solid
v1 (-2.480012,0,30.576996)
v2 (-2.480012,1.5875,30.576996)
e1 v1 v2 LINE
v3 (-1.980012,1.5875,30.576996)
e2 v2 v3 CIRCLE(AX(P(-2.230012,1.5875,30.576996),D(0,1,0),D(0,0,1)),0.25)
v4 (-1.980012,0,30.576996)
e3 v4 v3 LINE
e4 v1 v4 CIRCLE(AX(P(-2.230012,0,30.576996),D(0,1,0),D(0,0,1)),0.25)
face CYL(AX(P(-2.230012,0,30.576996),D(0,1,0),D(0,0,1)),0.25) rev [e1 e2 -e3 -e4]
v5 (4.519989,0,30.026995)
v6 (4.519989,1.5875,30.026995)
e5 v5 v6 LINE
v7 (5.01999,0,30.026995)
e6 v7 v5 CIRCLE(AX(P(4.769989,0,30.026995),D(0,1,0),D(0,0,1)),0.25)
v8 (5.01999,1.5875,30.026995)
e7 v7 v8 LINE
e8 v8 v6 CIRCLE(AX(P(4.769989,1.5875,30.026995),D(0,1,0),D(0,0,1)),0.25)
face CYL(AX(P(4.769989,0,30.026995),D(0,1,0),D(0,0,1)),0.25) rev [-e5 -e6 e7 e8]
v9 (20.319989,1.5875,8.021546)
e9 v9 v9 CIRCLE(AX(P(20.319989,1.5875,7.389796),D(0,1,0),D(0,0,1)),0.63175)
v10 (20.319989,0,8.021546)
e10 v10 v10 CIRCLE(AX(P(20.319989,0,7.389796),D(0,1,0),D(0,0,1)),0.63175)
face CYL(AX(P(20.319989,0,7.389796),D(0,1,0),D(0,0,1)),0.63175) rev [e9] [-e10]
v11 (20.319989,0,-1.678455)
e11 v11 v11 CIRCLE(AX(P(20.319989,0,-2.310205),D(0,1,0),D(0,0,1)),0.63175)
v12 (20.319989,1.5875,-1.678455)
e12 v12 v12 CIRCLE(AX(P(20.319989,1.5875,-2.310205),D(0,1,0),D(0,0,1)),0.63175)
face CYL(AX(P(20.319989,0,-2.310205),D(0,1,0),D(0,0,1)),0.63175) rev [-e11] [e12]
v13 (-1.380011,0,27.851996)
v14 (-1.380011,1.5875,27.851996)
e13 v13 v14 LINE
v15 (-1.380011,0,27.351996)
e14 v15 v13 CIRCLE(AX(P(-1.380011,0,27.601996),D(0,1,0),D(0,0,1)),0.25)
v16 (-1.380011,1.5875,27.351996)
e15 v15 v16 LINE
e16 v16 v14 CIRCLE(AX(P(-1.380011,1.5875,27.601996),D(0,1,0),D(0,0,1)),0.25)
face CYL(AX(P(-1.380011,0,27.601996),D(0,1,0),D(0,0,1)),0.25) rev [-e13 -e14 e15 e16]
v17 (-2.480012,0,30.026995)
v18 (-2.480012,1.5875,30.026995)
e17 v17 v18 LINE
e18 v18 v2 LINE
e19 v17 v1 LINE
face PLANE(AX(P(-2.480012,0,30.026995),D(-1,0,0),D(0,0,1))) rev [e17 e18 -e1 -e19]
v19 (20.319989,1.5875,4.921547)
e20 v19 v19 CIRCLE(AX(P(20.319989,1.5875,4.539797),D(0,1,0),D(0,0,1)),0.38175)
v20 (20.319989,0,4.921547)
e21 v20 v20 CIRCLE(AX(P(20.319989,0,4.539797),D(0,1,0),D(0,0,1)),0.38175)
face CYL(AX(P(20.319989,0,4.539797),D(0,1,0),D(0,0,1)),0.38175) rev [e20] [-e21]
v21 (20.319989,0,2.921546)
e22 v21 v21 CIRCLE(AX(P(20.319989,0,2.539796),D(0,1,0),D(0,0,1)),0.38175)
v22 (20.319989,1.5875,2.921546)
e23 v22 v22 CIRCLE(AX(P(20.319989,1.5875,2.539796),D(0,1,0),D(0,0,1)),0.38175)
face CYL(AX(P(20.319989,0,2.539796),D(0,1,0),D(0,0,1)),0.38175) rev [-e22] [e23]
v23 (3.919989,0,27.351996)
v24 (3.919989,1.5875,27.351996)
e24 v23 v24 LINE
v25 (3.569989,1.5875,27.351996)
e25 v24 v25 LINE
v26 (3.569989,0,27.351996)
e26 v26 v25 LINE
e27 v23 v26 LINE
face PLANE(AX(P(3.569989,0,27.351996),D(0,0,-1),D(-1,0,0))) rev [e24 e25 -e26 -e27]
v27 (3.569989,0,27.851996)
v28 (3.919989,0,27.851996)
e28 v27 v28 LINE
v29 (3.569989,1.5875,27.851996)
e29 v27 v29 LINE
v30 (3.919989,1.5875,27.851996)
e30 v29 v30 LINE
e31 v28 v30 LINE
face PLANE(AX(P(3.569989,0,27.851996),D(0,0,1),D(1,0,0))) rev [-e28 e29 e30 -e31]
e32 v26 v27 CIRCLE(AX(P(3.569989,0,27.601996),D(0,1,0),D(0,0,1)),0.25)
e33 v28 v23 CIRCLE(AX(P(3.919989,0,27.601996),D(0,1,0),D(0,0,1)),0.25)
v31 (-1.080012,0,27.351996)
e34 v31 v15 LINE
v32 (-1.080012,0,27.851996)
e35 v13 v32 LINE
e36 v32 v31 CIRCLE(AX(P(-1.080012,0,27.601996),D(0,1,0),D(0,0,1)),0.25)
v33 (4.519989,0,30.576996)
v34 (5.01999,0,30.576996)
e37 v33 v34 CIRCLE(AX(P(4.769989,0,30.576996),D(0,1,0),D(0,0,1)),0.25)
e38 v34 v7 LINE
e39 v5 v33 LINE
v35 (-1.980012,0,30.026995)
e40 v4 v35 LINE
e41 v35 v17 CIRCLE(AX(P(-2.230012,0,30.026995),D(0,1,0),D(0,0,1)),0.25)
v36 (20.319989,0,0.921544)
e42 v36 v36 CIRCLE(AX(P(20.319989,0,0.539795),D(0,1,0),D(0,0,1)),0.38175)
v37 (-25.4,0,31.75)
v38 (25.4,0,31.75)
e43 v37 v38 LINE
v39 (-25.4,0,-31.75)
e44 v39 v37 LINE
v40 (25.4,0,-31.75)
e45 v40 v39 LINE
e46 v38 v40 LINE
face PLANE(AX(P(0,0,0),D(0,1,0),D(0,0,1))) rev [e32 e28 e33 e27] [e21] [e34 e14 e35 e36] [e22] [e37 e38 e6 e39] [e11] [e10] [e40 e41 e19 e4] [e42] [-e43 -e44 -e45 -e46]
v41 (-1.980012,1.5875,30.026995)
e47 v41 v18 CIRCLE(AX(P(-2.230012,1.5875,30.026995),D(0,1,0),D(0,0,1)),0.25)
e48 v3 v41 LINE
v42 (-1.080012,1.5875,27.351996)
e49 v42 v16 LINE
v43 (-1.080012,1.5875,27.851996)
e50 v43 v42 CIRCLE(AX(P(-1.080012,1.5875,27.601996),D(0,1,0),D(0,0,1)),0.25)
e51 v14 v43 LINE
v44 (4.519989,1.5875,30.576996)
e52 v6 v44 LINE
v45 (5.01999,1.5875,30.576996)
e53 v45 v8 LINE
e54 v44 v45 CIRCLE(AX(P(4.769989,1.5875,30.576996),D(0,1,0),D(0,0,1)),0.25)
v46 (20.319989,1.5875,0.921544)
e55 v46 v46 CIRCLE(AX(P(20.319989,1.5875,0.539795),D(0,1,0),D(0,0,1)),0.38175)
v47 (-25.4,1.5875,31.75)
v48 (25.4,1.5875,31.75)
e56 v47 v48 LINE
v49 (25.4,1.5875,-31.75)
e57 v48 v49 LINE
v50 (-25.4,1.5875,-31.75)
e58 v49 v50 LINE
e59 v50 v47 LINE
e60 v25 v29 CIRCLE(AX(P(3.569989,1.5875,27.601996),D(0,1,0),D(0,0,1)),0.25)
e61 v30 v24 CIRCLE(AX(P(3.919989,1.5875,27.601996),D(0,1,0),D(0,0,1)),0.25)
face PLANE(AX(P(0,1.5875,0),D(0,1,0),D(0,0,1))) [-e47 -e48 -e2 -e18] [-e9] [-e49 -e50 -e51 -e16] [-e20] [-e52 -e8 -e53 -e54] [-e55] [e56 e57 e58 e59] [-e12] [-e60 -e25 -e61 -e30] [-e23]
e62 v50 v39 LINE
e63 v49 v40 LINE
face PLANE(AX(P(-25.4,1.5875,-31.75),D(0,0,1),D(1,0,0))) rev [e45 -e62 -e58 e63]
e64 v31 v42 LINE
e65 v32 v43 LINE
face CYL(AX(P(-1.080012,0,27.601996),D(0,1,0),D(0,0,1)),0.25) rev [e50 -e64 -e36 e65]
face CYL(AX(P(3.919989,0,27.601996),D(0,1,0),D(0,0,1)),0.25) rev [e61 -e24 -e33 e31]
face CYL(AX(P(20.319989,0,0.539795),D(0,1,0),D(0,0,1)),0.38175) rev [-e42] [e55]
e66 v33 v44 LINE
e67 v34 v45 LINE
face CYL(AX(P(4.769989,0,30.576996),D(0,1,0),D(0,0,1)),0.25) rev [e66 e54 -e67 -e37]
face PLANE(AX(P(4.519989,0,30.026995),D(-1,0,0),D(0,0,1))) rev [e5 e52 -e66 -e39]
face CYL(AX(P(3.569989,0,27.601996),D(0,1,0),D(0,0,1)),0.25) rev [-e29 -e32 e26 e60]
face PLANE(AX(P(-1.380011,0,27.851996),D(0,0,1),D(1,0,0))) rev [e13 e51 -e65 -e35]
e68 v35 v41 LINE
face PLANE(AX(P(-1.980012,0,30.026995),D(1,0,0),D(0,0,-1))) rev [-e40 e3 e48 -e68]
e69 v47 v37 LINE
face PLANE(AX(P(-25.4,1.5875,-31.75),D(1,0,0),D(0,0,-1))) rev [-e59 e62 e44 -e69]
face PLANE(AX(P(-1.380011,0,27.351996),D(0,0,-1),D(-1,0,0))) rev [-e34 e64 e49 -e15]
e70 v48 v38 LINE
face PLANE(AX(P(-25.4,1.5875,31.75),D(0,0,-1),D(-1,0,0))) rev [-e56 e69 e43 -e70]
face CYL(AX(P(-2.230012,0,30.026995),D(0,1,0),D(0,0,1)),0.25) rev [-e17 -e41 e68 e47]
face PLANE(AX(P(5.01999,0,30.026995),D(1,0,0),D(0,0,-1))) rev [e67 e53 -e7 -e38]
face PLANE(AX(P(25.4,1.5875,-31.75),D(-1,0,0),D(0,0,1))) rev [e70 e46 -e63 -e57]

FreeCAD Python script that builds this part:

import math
import FreeCAD as App
import Part
import Sketcher

V = App.Vector
Q = App.Units.Quantity

doc = App.newDocument("Part")
body = doc.addObject("PartDesign::Body", "Body")

# Sketch on XZ plane
sketch1 = body.newObject("Sketcher::SketchObject", "Sketch")
sketch1.AttachmentSupport = (doc.getObject("XZ_Plane"), [""])
sketch1.MapMode = "FlatFace"
sketch1.addGeometry(Part.LineSegment(V(-25, -32, 0), V(-25, 32, 0)), False)
sketch1.addGeometry(Part.LineSegment(V(-25, 32, 0), V(25, 32, 0)), False)
sketch1.addGeometry(Part.LineSegment(V(25, 32, 0), V(25, -32, 0)), False)
sketch1.addGeometry(Part.LineSegment(V(25, -32, 0), V(-25, -32, 0)), False)
sketch1.addConstraint(Sketcher.Constraint("Coincident", 0, 2, 1, 1))
sketch1.addConstraint(Sketcher.Constraint("Coincident", 1, 2, 2, 1))
sketch1.addConstraint(Sketcher.Constraint("Coincident", 2, 2, 3, 1))
sketch1.addConstraint(Sketcher.Constraint("Coincident", 3, 2, 0, 1))
sketch1.addConstraint(Sketcher.Constraint("Vertical", 0))
sketch1.addConstraint(Sketcher.Constraint("Horizontal", 1))
sketch1.addConstraint(Sketcher.Constraint("Vertical", 2))
sketch1.addConstraint(Sketcher.Constraint("Horizontal", 3))
sketch1.addConstraint(Sketcher.Constraint("Symmetric", 0, 2, 2, 2, -1, 1))
sketch1.addConstraint(Sketcher.Constraint("DistanceX", 1, 1, 1, 2, Q("2 in")))
sketch1.addConstraint(Sketcher.Constraint("DistanceY", 0, 1, 0, 2, Q("2.5 in")))
pad1 = body.newObject("PartDesign::Pad", "Pad")
pad1.Profile = sketch1
pad1.Length = Q("0.0625 in")
pad1.Reversed = True

# Sketch on XZ plane
sketch2 = body.newObject("Sketcher::SketchObject", "Sketch001")
sketch2.AttachmentSupport = (doc.getObject("XZ_Plane"), [""])
sketch2.MapMode = "FlatFace"
sketch2.AttachmentOffset = App.Placement(V(0, 0, -0.0625 * 25.4), App.Rotation())
sketch2.addGeometry(Part.Circle(V(20.32, 7.39, 0), V(0, 0, 1), 0.63), False)
sketch2.addGeometry(Part.Circle(V(20.32, 4.54, 0), V(0, 0, 1), 0.38), False)
sketch2.addGeometry(Part.Circle(V(20.32, 2.54, 0), V(0, 0, 1), 0.38), False)
sketch2.addGeometry(Part.Circle(V(20.32, 0.54, 0), V(0, 0, 1), 0.38), False)
sketch2.addGeometry(Part.Circle(V(20.32, -2.31, 0), V(0, 0, 1), 0.63), False)
sketch2.addGeometry(Part.LineSegment(V(-1.08, 27.35, 0), V(-1.38, 27.35, 0)), False)
sketch2.addGeometry(Part.ArcOfCircle(Part.Circle(V(-1.38, 27.6, 0), V(0, 0, 1), 0.25), math.radians(90), math.radians(270)), False)
sketch2.addGeometry(Part.LineSegment(V(-1.38, 27.85, 0), V(-1.08, 27.85, 0)), False)
sketch2.addGeometry(Part.ArcOfCircle(Part.Circle(V(-1.08, 27.6, 0), V(0, 0, 1), 0.25), math.radians(-90), math.radians(90)), False)
sketch2.addGeometry(Part.LineSegment(V(3.92, 27.35, 0), V(3.57, 27.35, 0)), False)
sketch2.addGeometry(Part.ArcOfCircle(Part.Circle(V(3.57, 27.6, 0), V(0, 0, 1), 0.25), math.radians(90), math.radians(270)), False)
sketch2.addGeometry(Part.LineSegment(V(3.57, 27.85, 0), V(3.92, 27.85, 0)), False)
sketch2.addGeometry(Part.ArcOfCircle(Part.Circle(V(3.92, 27.6, 0), V(0, 0, 1), 0.25), math.radians(-90), math.radians(90)), False)
sketch2.addGeometry(Part.LineSegment(V(4.52, 30.03, 0), V(4.52, 30.58, 0)), False)
sketch2.addGeometry(Part.ArcOfCircle(Part.Circle(V(4.77, 30.58, 0), V(0, 0, 1), 0.25), math.radians(0), math.radians(180)), False)
sketch2.addGeometry(Part.LineSegment(V(5.02, 30.58, 0), V(5.02, 30.03, 0)), False)
sketch2.addGeometry(Part.ArcOfCircle(Part.Circle(V(4.77, 30.03, 0), V(0, 0, 1), 0.25), math.radians(180), math.radians(360)), False)
sketch2.addGeometry(Part.LineSegment(V(-1.98, 30.58, 0), V(-1.98, 30.03, 0)), False)
sketch2.addGeometry(Part.ArcOfCircle(Part.Circle(V(-2.23, 30.03, 0), V(0, 0, 1), 0.25), math.radians(180), math.radians(360)), False)
sketch2.addGeometry(Part.LineSegment(V(-2.48, 30.03, 0), V(-2.48, 30.58, 0)), False)
sketch2.addGeometry(Part.ArcOfCircle(Part.Circle(V(-2.23, 30.58, 0), V(0, 0, 1), 0.25), math.radians(0), math.radians(180)), False)
sketch2.addConstraint(Sketcher.Constraint("Tangent", 5, 2, 6, 2))
sketch2.addConstraint(Sketcher.Constraint("Tangent", 6, 1, 7, 1))
sketch2.addConstraint(Sketcher.Constraint("Tangent", 7, 2, 8, 2))
sketch2.addConstraint(Sketcher.Constraint("Tangent", 8, 1, 5, 1))
sketch2.addConstraint(Sketcher.Constraint("Tangent", 9, 2, 10, 2))
sketch2.addConstraint(Sketcher.Constraint("Tangent", 10, 1, 11, 1))
sketch2.addConstraint(Sketcher.Constraint("Tangent", 11, 2, 12, 2))
sketch2.addConstraint(Sketcher.Constraint("Tangent", 12, 1, 9, 1))
sketch2.addConstraint(Sketcher.Constraint("Tangent", 13, 2, 14, 2))
sketch2.addConstraint(Sketcher.Constraint("Tangent", 14, 1, 15, 1))
sketch2.addConstraint(Sketcher.Constraint("Tangent", 15, 2, 16, 2))
sketch2.addConstraint(Sketcher.Constraint("Tangent", 16, 1, 13, 1))
sketch2.addConstraint(Sketcher.Constraint("Tangent", 17, 2, 18, 2))
sketch2.addConstraint(Sketcher.Constraint("Tangent", 18, 1, 19, 1))
sketch2.addConstraint(Sketcher.Constraint("Tangent", 19, 2, 20, 2))
sketch2.addConstraint(Sketcher.Constraint("Tangent", 20, 1, 17, 1))
sketch2.addConstraint(Sketcher.Constraint("Horizontal", 5))
sketch2.addConstraint(Sketcher.Constraint("Horizontal", 7))
sketch2.addConstraint(Sketcher.Constraint("Horizontal", 9))
sketch2.addConstraint(Sketcher.Constraint("Horizontal", 11))
sketch2.addConstraint(Sketcher.Constraint("Vertical", 13))
sketch2.addConstraint(Sketcher.Constraint("Vertical", 15))
sketch2.addConstraint(Sketcher.Constraint("Vertical", 17))
sketch2.addConstraint(Sketcher.Constraint("Vertical", 19))
sketch2.addConstraint(Sketcher.Constraint("Equal", 1, 2))
sketch2.addConstraint(Sketcher.Constraint("Equal", 2, 3))
sketch2.addConstraint(Sketcher.Constraint("Equal", 0, 4))
sketch2.addConstraint(Sketcher.Constraint("Equal", 8, 10))
sketch2.addConstraint(Sketcher.Constraint("Equal", 12, 14))
sketch2.addConstraint(Sketcher.Constraint("Equal", 16, 18))
sketch2.addConstraint(Sketcher.Constraint("Horizontal", 8, 3, 10, 3))
sketch2.addConstraint(Sketcher.Constraint("Horizontal", 16, 3, 18, 3))
sketch2.addConstraint(Sketcher.Constraint("Horizontal", 14, 3, 20, 3))
sketch2.addConstraint(Sketcher.Constraint("Vertical", 0, 3, 1, 3))
sketch2.addConstraint(Sketcher.Constraint("Vertical", 1, 3, 2, 3))
sketch2.addConstraint(Sketcher.Constraint("Vertical", 2, 3, 3, 3))
sketch2.addConstraint(Sketcher.Constraint("Vertical", 3, 3, 4, 3))
sketch2.addConstraint(Sketcher.Constraint("Diameter", 0, Q("1.2635 mm")))
sketch2.addConstraint(Sketcher.Constraint("Diameter", 1, Q("0.7635 mm")))
sketch2.addConstraint(Sketcher.Constraint("Radius", 6, Q("0.25 mm")))
sketch2.addConstraint(Sketcher.Constraint("DistanceX", 5, 2, 5, 1, Q("0.299999 mm")))
sketch2.addConstraint(Sketcher.Constraint("DistanceX", 9, 2, 9, 1, Q("0.349999 mm")))
sketch2.addConstraint(Sketcher.Constraint("DistanceY", 13, 1, 13, 2, Q("0.550001 mm")))
sketch2.addConstraint(Sketcher.Constraint("DistanceY", 1, 3, 0, 3, Q("2.849999 mm")))
sketch2.addConstraint(Sketcher.Constraint("DistanceY", 2, 3, 1, 3, Q("2.000001 mm")))
sketch2.addConstraint(Sketcher.Constraint("DistanceY", 3, 3, 2, 3, Q("2.000001 mm")))
sketch2.addConstraint(Sketcher.Constraint("DistanceY", 4, 3, 3, 3, Q("2.849999 mm")))
sketch2.addConstraint(Sketcher.Constraint("DistanceX", 6, 3, 0, 3, Q("21.7 mm")))
sketch2.addConstraint(Sketcher.Constraint("DistanceY", 0, 3, 6, 3, Q("20.2122 mm")))
sketch2.addConstraint(Sketcher.Constraint("DistanceX", 8, 3, 10, 3, Q("4.650001 mm")))
sketch2.addConstraint(Sketcher.Constraint("DistanceX", 12, 3, 14, 3, Q("0.850001 mm")))
sketch2.addConstraint(Sketcher.Constraint("DistanceY", 12, 3, 14, 3, Q("2.975 mm")))
sketch2.addConstraint(Sketcher.Constraint("DistanceX", 18, 3, 6, 3, Q("0.850001 mm")))
sketch2.addConstraint(Sketcher.Constraint("DistanceX", -1, 1, 0, 3, Q("20.319989 mm")))
sketch2.addConstraint(Sketcher.Constraint("DistanceY", -1, 1, 0, 3, Q("7.389796 mm")))
pocket1 = body.newObject("PartDesign::Pocket", "Pocket")
pocket1.Profile = sketch2
pocket1.Type = "ThroughAll"
pocket1.Reversed = True

doc.recompute()
